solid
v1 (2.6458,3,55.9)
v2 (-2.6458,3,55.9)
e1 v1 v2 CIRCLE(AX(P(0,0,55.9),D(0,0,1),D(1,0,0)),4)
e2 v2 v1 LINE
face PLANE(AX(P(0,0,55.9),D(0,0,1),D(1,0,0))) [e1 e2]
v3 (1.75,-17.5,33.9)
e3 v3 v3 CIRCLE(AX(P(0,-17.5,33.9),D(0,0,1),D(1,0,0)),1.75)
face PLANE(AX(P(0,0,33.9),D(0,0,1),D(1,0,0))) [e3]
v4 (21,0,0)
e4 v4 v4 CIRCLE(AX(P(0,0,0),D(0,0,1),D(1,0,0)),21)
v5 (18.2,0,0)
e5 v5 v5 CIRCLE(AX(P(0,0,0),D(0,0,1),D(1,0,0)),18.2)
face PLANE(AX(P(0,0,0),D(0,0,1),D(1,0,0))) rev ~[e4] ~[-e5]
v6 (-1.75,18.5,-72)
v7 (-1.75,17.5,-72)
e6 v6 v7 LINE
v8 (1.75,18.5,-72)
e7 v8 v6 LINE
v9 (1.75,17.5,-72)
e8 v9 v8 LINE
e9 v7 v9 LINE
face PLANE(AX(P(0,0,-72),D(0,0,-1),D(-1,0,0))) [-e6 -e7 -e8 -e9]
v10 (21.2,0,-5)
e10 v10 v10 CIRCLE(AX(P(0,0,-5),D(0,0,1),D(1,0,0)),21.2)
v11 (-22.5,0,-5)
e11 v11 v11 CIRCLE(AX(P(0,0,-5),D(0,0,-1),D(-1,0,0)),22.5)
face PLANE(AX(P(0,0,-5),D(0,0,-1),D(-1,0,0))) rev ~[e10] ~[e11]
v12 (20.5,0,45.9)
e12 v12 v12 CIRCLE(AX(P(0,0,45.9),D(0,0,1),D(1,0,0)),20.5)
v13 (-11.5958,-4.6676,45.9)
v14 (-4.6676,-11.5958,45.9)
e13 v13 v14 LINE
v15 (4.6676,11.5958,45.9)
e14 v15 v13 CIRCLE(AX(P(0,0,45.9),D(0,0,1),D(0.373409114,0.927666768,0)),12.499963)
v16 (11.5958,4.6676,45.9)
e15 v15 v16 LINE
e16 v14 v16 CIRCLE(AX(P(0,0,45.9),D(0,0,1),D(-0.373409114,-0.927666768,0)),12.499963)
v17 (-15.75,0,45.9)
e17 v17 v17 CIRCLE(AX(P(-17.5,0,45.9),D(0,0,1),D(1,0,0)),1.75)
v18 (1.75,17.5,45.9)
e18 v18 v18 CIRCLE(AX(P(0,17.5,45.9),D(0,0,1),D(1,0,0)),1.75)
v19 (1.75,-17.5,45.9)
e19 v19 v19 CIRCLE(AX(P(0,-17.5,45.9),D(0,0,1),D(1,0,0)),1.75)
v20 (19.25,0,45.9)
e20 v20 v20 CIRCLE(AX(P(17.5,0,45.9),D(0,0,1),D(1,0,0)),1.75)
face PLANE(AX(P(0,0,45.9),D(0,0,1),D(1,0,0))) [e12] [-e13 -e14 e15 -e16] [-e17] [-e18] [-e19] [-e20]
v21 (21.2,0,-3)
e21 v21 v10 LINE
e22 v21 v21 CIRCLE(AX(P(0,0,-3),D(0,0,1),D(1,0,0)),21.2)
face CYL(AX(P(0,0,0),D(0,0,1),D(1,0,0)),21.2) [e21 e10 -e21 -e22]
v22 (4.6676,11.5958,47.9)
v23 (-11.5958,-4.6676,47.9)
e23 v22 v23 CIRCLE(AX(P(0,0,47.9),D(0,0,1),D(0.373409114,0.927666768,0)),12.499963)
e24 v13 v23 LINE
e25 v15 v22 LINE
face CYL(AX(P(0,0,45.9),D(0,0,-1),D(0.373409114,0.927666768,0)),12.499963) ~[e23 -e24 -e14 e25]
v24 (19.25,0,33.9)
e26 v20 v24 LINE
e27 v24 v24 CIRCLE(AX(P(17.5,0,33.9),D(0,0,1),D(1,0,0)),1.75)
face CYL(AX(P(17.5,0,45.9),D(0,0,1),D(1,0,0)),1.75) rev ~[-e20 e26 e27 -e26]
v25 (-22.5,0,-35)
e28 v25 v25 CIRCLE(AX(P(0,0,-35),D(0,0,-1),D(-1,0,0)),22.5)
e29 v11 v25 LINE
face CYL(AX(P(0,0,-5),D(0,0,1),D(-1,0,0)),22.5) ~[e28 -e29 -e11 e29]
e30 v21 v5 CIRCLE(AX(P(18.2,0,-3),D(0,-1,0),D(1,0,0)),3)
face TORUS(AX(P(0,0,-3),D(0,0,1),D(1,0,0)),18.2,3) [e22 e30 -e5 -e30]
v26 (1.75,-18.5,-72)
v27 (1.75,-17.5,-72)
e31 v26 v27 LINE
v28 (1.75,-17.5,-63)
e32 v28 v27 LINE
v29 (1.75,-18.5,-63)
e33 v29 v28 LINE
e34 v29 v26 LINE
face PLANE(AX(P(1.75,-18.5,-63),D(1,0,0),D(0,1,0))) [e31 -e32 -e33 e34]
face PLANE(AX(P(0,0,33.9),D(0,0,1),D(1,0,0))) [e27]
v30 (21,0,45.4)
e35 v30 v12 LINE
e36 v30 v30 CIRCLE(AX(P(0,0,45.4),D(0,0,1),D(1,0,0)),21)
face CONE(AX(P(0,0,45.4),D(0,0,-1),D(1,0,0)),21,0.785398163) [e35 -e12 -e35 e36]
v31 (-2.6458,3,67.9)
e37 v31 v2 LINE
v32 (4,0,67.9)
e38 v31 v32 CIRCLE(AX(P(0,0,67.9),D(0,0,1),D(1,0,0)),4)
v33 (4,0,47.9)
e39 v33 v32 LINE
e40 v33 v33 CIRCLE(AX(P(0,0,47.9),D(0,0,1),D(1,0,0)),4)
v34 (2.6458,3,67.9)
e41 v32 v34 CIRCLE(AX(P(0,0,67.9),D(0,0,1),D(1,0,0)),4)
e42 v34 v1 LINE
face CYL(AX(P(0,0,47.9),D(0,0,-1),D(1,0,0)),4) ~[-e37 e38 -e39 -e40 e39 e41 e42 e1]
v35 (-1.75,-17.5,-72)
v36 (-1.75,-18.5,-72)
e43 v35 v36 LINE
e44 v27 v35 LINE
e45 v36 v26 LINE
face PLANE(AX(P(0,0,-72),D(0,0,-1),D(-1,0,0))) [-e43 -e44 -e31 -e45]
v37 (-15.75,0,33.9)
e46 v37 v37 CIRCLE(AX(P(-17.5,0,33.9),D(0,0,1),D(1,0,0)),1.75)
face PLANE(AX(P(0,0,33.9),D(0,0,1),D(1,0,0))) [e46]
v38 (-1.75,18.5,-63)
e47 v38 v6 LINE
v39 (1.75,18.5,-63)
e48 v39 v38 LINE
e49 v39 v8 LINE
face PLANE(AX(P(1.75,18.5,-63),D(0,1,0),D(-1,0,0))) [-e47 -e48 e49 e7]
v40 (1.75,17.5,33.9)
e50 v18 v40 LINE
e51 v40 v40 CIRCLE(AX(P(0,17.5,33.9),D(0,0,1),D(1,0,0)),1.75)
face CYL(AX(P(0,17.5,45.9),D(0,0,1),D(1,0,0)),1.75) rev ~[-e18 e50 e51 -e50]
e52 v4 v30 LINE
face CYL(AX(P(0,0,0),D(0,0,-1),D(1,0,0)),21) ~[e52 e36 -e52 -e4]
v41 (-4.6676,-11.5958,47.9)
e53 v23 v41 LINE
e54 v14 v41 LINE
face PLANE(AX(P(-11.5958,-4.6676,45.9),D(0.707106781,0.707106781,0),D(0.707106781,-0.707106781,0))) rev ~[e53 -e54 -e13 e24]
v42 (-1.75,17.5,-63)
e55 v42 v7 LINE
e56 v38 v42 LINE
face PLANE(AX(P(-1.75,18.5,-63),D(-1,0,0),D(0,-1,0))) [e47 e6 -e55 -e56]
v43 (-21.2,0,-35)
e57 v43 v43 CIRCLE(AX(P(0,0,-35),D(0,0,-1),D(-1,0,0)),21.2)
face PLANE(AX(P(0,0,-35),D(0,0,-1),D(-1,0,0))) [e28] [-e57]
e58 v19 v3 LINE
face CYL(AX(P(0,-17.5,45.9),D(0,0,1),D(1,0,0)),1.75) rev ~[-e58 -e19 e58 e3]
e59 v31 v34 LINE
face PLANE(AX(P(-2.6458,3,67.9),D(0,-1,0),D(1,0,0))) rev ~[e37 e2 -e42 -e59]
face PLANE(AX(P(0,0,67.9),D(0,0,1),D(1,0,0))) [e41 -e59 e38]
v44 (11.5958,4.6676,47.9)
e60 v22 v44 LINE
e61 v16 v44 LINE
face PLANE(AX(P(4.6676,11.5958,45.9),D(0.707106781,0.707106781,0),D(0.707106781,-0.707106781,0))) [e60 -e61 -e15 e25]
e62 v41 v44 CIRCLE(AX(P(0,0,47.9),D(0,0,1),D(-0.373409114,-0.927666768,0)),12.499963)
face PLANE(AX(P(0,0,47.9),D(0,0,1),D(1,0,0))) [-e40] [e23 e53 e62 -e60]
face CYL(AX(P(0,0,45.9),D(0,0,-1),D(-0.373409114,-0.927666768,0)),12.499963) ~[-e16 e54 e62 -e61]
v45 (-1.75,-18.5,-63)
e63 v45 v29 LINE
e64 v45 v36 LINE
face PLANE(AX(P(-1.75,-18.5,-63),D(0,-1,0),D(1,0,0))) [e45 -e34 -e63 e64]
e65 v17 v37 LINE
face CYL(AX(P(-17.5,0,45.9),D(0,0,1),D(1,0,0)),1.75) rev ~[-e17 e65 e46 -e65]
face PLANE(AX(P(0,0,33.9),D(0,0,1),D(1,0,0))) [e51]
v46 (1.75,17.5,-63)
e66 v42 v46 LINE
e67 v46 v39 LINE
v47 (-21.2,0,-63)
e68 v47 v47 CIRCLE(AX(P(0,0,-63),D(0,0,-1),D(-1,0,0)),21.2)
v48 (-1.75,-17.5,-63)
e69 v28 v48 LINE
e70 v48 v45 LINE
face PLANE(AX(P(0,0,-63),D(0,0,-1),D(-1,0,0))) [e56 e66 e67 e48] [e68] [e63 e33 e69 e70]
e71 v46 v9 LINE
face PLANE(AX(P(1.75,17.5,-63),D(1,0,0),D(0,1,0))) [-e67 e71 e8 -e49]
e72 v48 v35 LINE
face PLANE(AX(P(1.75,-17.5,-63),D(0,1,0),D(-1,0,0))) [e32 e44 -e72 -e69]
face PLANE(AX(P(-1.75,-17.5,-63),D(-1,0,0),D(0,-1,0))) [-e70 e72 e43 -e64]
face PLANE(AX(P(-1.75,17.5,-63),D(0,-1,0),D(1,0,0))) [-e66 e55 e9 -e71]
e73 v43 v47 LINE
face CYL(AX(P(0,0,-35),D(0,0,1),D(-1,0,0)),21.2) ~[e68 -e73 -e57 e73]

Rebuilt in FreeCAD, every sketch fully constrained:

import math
import FreeCAD as App
import Part
import Sketcher

V = App.Vector
Q = App.Units.Quantity


def edges_at(feature, points):
    """Names of the edges that pass closest to the given points."""
    edges = feature.Shape.Edges
    near = lambda p: min(range(len(edges)), key=lambda i: edges[i].distToShape(Part.Vertex(*p))[0])
    return sorted({f"Edge{near(p) + 1}" for p in points})


def add_polygon(sketch, points):
    """Adds a closed chain of lines whose ends are joined by coincident constraints."""
    first, n = sketch.GeometryCount, len(points)
    for a, b in zip(points, points[1:] + points[:1]):
        sketch.addGeometry(Part.LineSegment(App.Vector(*a, 0), App.Vector(*b, 0)), False)
    for i in range(n):
        sketch.addConstraint(Sketcher.Constraint("Coincident", first + i, 2, first + (i + 1) % n, 1))

doc = App.newDocument("Part")
params = doc.addObject("Spreadsheet::Sheet", "Params")
for row, (alias, value) in enumerate([
    ("sketch1_diameter", "42.4 mm"),
    ("pad1_length", "5 mm"),
    ("sketch2_diameter", "45 mm"),
    ("pad2_length", "30 mm"),
    ("sketch3_diameter", "42.4 mm"),
    ("pad3_length", "28 mm"),
    ("fillet_radius", "3 mm"),
    ("sketch4_height", "1 mm"),
    ("sketch4_width", "3.5 mm"),
    ("pad4_length", "9 mm"),
    ("sketch5_diameter", "42 mm"),
    ("pad5_length", "45.9 mm"),
    ("chamfer_size", "0.5 mm"),
    ("sketch6_radius", "12.5 mm"),
    ("pad6_length", "2 mm"),
    ("sketch7_diameter", "8 mm"),
    ("pad7_length", "20 mm"),
    ("sketch8_radius", "4 mm"),
    ("pocket1_length", "12 mm"),
    ("sketch9_diameter", "3.5 mm"),
    ("pocket2_length", "12 mm"),
], start=1):
    params.set(f"A{row}", alias)
    params.set(f"B{row}", "=" + value)
    params.setAlias(f"B{row}", alias)

body = doc.addObject("PartDesign::Body", "Body")

# Sketch on XY plane
sketch1 = body.newObject("Sketcher::SketchObject", "Sketch")
sketch1.AttachmentSupport = (doc.getObject("XY_Plane"), [""])
sketch1.MapMode = "FlatFace"
sketch1.addGeometry(Part.Circle(V(0, 0, 0), V(0, 0, 1), 21.2), False)
sketch1.addConstraint([
    Sketcher.Constraint("Coincident", 0, 3, -1, 1),
    Sketcher.Constraint("Diameter", 0, 42.4),
])
sketch1.setExpression("Constraints[1]", "Params.sketch1_diameter")
pad1 = body.newObject("PartDesign::Pad", "Pad")
pad1.Profile = sketch1
pad1.setExpression("Length", "Params.pad1_length")
pad1.Reversed = True

# Sketch on XY plane
sketch2 = body.newObject("Sketcher::SketchObject", "Sketch001")
sketch2.AttachmentSupport = (doc.getObject("XY_Plane"), [""])
sketch2.MapMode = "FlatFace"
sketch2.AttachmentOffset = App.Placement(V(0, 0, -5), App.Rotation())
sketch2.addGeometry(Part.Circle(V(0, 0, 0), V(0, 0, 1), 22.5), False)
sketch2.addConstraint([
    Sketcher.Constraint("Coincident", 0, 3, -1, 1),
    Sketcher.Constraint("Diameter", 0, 45.0),
])
sketch2.setExpression("Constraints[1]", "Params.sketch2_diameter")
pad2 = body.newObject("PartDesign::Pad", "Pad001")
pad2.Profile = sketch2
pad2.setExpression("Length", "Params.pad2_length")
pad2.Reversed = True

# Sketch on XY plane
sketch3 = body.newObject("Sketcher::SketchObject", "Sketch002")
sketch3.AttachmentSupport = (doc.getObject("XY_Plane"), [""])
sketch3.MapMode = "FlatFace"
sketch3.AttachmentOffset = App.Placement(V(0, 0, -35), App.Rotation())
sketch3.addGeometry(Part.Circle(V(0, 0, 0), V(0, 0, 1), 21.2), False)
sketch3.addConstraint([
    Sketcher.Constraint("Coincident", 0, 3, -1, 1),
    Sketcher.Constraint("Diameter", 0, 42.4),
])
sketch3.setExpression("Constraints[1]", "Params.sketch3_diameter")
pad3 = body.newObject("PartDesign::Pad", "Pad002")
pad3.Profile = sketch3
pad3.setExpression("Length", "Params.pad3_length")
pad3.Reversed = True
doc.recompute()

fillet = body.newObject("PartDesign::Fillet", "Fillet")
fillet.Base = (pad3, edges_at(pad3, [(-21.2, 0, 0)]))
fillet.setExpression("Radius", "Params.fillet_radius")

# Sketch on XY plane
sketch4 = body.newObject("Sketcher::SketchObject", "Sketch003")
sketch4.AttachmentSupport = (doc.getObject("XY_Plane"), [""])
sketch4.MapMode = "FlatFace"
sketch4.AttachmentOffset = App.Placement(V(0, 0, -63), App.Rotation())
add_polygon(sketch4, [(-1.75, 18.5), (1.75, 18.5), (1.75, 17.5), (-1.75, 17.5)])  # lines 0-3
add_polygon(sketch4, [(-1.75, -17.5), (1.75, -17.5), (1.75, -18.5), (-1.75, -18.5)])  # lines 4-7
sketch4.addConstraint([
    Sketcher.Constraint("Horizontal", 0),
    Sketcher.Constraint("Vertical", 1),
    Sketcher.Constraint("Horizontal", 2),
    Sketcher.Constraint("Vertical", 3),
    Sketcher.Constraint("Horizontal", 4),
    Sketcher.Constraint("Vertical", 5),
    Sketcher.Constraint("Horizontal", 6),
    Sketcher.Constraint("Vertical", 7),
    Sketcher.Constraint("Symmetric", 2, 2, 4, 2, -1, 1),
    Sketcher.Constraint("Symmetric", 0, 2, 6, 2, -1, 1),
    Sketcher.Constraint("Vertical", 1, 2, 4, 2),
    Sketcher.Constraint("DistanceY", 1, 2, 1, 1, 1.0),
    Sketcher.Constraint("DistanceX", 0, 1, 0, 2, 3.5),
    Sketcher.Constraint("DistanceY", -1, 1, 1, 2, 17.5),
])
sketch4.setExpression("Constraints[19]", "Params.sketch4_height")
sketch4.setExpression("Constraints[20]", "Params.sketch4_width")
pad4 = body.newObject("PartDesign::Pad", "Pad003")
pad4.Profile = sketch4
pad4.setExpression("Length", "Params.pad4_length")
pad4.Reversed = True

# Sketch on XY plane
sketch5 = body.newObject("Sketcher::SketchObject", "Sketch004")
sketch5.AttachmentSupport = (doc.getObject("XY_Plane"), [""])
sketch5.MapMode = "FlatFace"
sketch5.addGeometry(Part.Circle(V(0, 0, 0), V(0, 0, 1), 21), False)
sketch5.addConstraint([
    Sketcher.Constraint("Coincident", 0, 3, -1, 1),
    Sketcher.Constraint("Diameter", 0, 42.0),
])
sketch5.setExpression("Constraints[1]", "Params.sketch5_diameter")
pad5 = body.newObject("PartDesign::Pad", "Pad004")
pad5.Profile = sketch5
pad5.setExpression("Length", "Params.pad5_length")
doc.recompute()

chamfer = body.newObject("PartDesign::Chamfer", "Chamfer")
chamfer.Base = (pad5, edges_at(pad5, [(-21, 0, 45.9)]))
chamfer.setExpression("Size", "Params.chamfer_size")

# Sketch on XY plane
sketch6 = body.newObject("Sketcher::SketchObject", "Sketch005")
sketch6.AttachmentSupport = (doc.getObject("XY_Plane"), [""])
sketch6.MapMode = "FlatFace"
sketch6.AttachmentOffset = App.Placement(V(0, 0, 45.9), App.Rotation())
sketch6.addGeometry([
    Part.LineSegment(V(11.5958, 4.6676, 0), V(4.6676, 11.5958, 0)),
    Part.ArcOfCircle(Part.Circle(V(0, 0, 0), V(0, 0, 1), 12.499963), math.radians(68.07398), math.radians(201.92602)),
    Part.LineSegment(V(-11.5958, -4.6676, 0), V(-4.6676, -11.5958, 0)),
    Part.ArcOfCircle(Part.Circle(V(0, 0, 0), V(0, 0, 1), 12.499963), math.radians(-111.92602), math.radians(21.92602)),
], False)
sketch6.addConstraint([
    Sketcher.Constraint("Coincident", 0, 2, 1, 1),
    Sketcher.Constraint("Coincident", 1, 2, 2, 1),
    Sketcher.Constraint("Coincident", 2, 2, 3, 1),
    Sketcher.Constraint("Coincident", 3, 2, 0, 1),
    Sketcher.Constraint("Coincident", 1, 3, -1, 1),
    Sketcher.Constraint("Coincident", 3, 3, -1, 1),
    Sketcher.Constraint("Equal", 1, 3),
    Sketcher.Constraint("Parallel", 0, 2),
    Sketcher.Constraint("Equal", 0, 2),
    Sketcher.Constraint("Radius", 1, 12.5),
    Sketcher.Constraint("Angle", 2, Q("-45 deg")),
    Sketcher.Constraint("Distance", 0, 9.798),
])
sketch6.setExpression("Constraints[9]", "Params.sketch6_radius")
pad6 = body.newObject("PartDesign::Pad", "Pad005")
pad6.Profile = sketch6
pad6.setExpression("Length", "Params.pad6_length")

# Sketch on XY plane
sketch7 = body.newObject("Sketcher::SketchObject", "Sketch006")
sketch7.AttachmentSupport = (doc.getObject("XY_Plane"), [""])
sketch7.MapMode = "FlatFace"
sketch7.AttachmentOffset = App.Placement(V(0, 0, 47.9), App.Rotation())
sketch7.addGeometry(Part.Circle(V(0, 0, 0), V(0, 0, 1), 4), False)
sketch7.addConstraint([
    Sketcher.Constraint("Coincident", 0, 3, -1, 1),
    Sketcher.Constraint("Diameter", 0, 8.0),
])
sketch7.setExpression("Constraints[1]", "Params.sketch7_diameter")
pad7 = body.newObject("PartDesign::Pad", "Pad006")
pad7.Profile = sketch7
pad7.setExpression("Length", "Params.pad7_length")

# Sketch on XY plane
sketch8 = body.newObject("Sketcher::SketchObject", "Sketch007")
sketch8.AttachmentSupport = (doc.getObject("XY_Plane"), [""])
sketch8.MapMode = "FlatFace"
sketch8.AttachmentOffset = App.Placement(V(0, 0, 67.9), App.Rotation())
sketch8.addGeometry([
    Part.LineSegment(V(-2.6458, 3, 0), V(2.6458, 3, 0)),
    Part.ArcOfCircle(Part.Circle(V(0, 0, 0), V(0, 0, 1), 4), math.radians(48.589855), math.radians(131.410145)),
], False)
sketch8.addConstraint([
    Sketcher.Constraint("Coincident", 0, 1, 1, 2),
    Sketcher.Constraint("Coincident", 1, 1, 0, 2),
    Sketcher.Constraint("Horizontal", 0),
    Sketcher.Constraint("Coincident", 1, 3, -1, 1),
    Sketcher.Constraint("DistanceY", -1, 1, 0, 1, 3.0),
    Sketcher.Constraint("Radius", 1, 4.0),
])
sketch8.setExpression("Constraints[5]", "Params.sketch8_radius")
pocket1 = body.newObject("PartDesign::Pocket", "Pocket")
pocket1.Profile = sketch8
pocket1.setExpression("Length", "Params.pocket1_length")

# Sketch on XY plane
sketch9 = body.newObject("Sketcher::SketchObject", "Sketch008")
sketch9.AttachmentSupport = (doc.getObject("XY_Plane"), [""])
sketch9.MapMode = "FlatFace"
sketch9.AttachmentOffset = App.Placement(V(0, 0, 45.9), App.Rotation())
sketch9.addGeometry([
    Part.Circle(V(0, 17.5, 0), V(0, 0, 1), 1.75),
    Part.Circle(V(-17.5, 0, 0), V(0, 0, 1), 1.75),
    Part.Circle(V(0, -17.5, 0), V(0, 0, 1), 1.75),
    Part.Circle(V(17.5, 0, 0), V(0, 0, 1), 1.75),
], False)
sketch9.addConstraint([
    Sketcher.Constraint("Equal", 0, 1),
    Sketcher.Constraint("Equal", 1, 2),
    Sketcher.Constraint("Equal", 2, 3),
    Sketcher.Constraint("Symmetric", 0, 3, 2, 3, -1, 1),
    Sketcher.Constraint("Symmetric", 1, 3, 3, 3, -1, 1),
    Sketcher.Constraint("PointOnObject", 0, 3, -2),
    Sketcher.Constraint("PointOnObject", 1, 3, -1),
    Sketcher.Constraint("Diameter", 0, 3.5),
    Sketcher.Constraint("DistanceY", -1, 1, 0, 3, 17.5),
    Sketcher.Constraint("DistanceX", 1, 3, -1, 1, 17.5),
])
sketch9.setExpression("Constraints[7]", "Params.sketch9_diameter")
pocket2 = body.newObject("PartDesign::Pocket", "Pocket001")
pocket2.Profile = sketch9
pocket2.setExpression("Length", "Params.pocket2_length")

doc.recompute()
